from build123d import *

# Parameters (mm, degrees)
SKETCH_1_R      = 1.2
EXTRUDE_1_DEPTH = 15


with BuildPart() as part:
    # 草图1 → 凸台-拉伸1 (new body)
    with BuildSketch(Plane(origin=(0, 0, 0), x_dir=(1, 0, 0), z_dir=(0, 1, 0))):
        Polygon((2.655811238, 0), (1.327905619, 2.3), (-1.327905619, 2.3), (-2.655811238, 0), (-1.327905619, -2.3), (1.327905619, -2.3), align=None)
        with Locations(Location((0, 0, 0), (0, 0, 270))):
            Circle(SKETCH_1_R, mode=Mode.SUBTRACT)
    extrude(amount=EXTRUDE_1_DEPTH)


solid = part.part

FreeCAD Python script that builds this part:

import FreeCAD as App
import Part
import Sketcher
Q = App.Units.Quantity

doc = App.newDocument("Part")
body = doc.addObject("PartDesign::Body", "Body")

# Sketch on XZ plane
sketch1 = doc.addObject("Sketcher::SketchObject", "Sketch")
body.addObject(sketch1)
sketch1.AttachmentSupport = (doc.XZ_Plane, [""])
sketch1.MapMode = "FlatFace"
sketch1.addGeometry(Part.LineSegment(App.Vector(2.7, 0, 0), App.Vector(1.3, -2.3, 0)), False)
sketch1.addGeometry(Part.LineSegment(App.Vector(1.3, -2.3, 0), App.Vector(-1.3, -2.3, 0)), False)
sketch1.addGeometry(Part.LineSegment(App.Vector(-1.3, -2.3, 0), App.Vector(-2.7, 0, 0)), False)
sketch1.addGeometry(Part.LineSegment(App.Vector(-2.7, 0, 0), App.Vector(-1.3, 2.3, 0)), False)
sketch1.addGeometry(Part.LineSegment(App.Vector(-1.3, 2.3, 0), App.Vector(1.3, 2.3, 0)), False)
sketch1.addGeometry(Part.LineSegment(App.Vector(1.3, 2.3, 0), App.Vector(2.7, 0, 0)), False)
sketch1.addGeometry(Part.Circle(App.Vector(0, 0, 0), App.Vector(0, 0, 1), 1.2), False)
sketch1.addConstraint(Sketcher.Constraint("Coincident", 0, 2, 1, 1))
sketch1.addConstraint(Sketcher.Constraint("Coincident", 1, 2, 2, 1))
sketch1.addConstraint(Sketcher.Constraint("Coincident", 2, 2, 3, 1))
sketch1.addConstraint(Sketcher.Constraint("Coincident", 3, 2, 4, 1))
sketch1.addConstraint(Sketcher.Constraint("Coincident", 4, 2, 5, 1))
sketch1.addConstraint(Sketcher.Constraint("Coincident", 5, 2, 0, 1))
sketch1.addConstraint(Sketcher.Constraint("Horizontal", 1))
sketch1.addConstraint(Sketcher.Constraint("Horizontal", 4))
sketch1.addConstraint(Sketcher.Constraint("Coincident", 6, 3, -1, 1))
sketch1.addConstraint(Sketcher.Constraint("Symmetric", 0, 2, 3, 2, -1, 1))
sketch1.addConstraint(Sketcher.Constraint("Symmetric", 2, 2, 5, 2, -1, 1))
sketch1.addConstraint(Sketcher.Constraint("PointOnObject", 2, 2, -1))
sketch1.addConstraint(Sketcher.Constraint("Parallel", 2, 5))
sketch1.addConstraint(Sketcher.Constraint("Vertical", 1, 2, 3, 2))
sketch1.addConstraint(Sketcher.Constraint("Diameter", 6, 2.4))
sketch1.addConstraint(Sketcher.Constraint("Angle", 0, Q("-120 deg")))
sketch1.addConstraint(Sketcher.Constraint("DistanceY", 0, 2, -1, 1, 2.3))
sketch1.addConstraint(Sketcher.Constraint("DistanceX", 1, 2, 1, 1, 2.655811))
pad1 = doc.addObject("PartDesign::Pad", "Pad")
body.addObject(pad1)
pad1.Profile = sketch1
pad1.Length = 15
pad1.Reversed = True

doc.recompute()
